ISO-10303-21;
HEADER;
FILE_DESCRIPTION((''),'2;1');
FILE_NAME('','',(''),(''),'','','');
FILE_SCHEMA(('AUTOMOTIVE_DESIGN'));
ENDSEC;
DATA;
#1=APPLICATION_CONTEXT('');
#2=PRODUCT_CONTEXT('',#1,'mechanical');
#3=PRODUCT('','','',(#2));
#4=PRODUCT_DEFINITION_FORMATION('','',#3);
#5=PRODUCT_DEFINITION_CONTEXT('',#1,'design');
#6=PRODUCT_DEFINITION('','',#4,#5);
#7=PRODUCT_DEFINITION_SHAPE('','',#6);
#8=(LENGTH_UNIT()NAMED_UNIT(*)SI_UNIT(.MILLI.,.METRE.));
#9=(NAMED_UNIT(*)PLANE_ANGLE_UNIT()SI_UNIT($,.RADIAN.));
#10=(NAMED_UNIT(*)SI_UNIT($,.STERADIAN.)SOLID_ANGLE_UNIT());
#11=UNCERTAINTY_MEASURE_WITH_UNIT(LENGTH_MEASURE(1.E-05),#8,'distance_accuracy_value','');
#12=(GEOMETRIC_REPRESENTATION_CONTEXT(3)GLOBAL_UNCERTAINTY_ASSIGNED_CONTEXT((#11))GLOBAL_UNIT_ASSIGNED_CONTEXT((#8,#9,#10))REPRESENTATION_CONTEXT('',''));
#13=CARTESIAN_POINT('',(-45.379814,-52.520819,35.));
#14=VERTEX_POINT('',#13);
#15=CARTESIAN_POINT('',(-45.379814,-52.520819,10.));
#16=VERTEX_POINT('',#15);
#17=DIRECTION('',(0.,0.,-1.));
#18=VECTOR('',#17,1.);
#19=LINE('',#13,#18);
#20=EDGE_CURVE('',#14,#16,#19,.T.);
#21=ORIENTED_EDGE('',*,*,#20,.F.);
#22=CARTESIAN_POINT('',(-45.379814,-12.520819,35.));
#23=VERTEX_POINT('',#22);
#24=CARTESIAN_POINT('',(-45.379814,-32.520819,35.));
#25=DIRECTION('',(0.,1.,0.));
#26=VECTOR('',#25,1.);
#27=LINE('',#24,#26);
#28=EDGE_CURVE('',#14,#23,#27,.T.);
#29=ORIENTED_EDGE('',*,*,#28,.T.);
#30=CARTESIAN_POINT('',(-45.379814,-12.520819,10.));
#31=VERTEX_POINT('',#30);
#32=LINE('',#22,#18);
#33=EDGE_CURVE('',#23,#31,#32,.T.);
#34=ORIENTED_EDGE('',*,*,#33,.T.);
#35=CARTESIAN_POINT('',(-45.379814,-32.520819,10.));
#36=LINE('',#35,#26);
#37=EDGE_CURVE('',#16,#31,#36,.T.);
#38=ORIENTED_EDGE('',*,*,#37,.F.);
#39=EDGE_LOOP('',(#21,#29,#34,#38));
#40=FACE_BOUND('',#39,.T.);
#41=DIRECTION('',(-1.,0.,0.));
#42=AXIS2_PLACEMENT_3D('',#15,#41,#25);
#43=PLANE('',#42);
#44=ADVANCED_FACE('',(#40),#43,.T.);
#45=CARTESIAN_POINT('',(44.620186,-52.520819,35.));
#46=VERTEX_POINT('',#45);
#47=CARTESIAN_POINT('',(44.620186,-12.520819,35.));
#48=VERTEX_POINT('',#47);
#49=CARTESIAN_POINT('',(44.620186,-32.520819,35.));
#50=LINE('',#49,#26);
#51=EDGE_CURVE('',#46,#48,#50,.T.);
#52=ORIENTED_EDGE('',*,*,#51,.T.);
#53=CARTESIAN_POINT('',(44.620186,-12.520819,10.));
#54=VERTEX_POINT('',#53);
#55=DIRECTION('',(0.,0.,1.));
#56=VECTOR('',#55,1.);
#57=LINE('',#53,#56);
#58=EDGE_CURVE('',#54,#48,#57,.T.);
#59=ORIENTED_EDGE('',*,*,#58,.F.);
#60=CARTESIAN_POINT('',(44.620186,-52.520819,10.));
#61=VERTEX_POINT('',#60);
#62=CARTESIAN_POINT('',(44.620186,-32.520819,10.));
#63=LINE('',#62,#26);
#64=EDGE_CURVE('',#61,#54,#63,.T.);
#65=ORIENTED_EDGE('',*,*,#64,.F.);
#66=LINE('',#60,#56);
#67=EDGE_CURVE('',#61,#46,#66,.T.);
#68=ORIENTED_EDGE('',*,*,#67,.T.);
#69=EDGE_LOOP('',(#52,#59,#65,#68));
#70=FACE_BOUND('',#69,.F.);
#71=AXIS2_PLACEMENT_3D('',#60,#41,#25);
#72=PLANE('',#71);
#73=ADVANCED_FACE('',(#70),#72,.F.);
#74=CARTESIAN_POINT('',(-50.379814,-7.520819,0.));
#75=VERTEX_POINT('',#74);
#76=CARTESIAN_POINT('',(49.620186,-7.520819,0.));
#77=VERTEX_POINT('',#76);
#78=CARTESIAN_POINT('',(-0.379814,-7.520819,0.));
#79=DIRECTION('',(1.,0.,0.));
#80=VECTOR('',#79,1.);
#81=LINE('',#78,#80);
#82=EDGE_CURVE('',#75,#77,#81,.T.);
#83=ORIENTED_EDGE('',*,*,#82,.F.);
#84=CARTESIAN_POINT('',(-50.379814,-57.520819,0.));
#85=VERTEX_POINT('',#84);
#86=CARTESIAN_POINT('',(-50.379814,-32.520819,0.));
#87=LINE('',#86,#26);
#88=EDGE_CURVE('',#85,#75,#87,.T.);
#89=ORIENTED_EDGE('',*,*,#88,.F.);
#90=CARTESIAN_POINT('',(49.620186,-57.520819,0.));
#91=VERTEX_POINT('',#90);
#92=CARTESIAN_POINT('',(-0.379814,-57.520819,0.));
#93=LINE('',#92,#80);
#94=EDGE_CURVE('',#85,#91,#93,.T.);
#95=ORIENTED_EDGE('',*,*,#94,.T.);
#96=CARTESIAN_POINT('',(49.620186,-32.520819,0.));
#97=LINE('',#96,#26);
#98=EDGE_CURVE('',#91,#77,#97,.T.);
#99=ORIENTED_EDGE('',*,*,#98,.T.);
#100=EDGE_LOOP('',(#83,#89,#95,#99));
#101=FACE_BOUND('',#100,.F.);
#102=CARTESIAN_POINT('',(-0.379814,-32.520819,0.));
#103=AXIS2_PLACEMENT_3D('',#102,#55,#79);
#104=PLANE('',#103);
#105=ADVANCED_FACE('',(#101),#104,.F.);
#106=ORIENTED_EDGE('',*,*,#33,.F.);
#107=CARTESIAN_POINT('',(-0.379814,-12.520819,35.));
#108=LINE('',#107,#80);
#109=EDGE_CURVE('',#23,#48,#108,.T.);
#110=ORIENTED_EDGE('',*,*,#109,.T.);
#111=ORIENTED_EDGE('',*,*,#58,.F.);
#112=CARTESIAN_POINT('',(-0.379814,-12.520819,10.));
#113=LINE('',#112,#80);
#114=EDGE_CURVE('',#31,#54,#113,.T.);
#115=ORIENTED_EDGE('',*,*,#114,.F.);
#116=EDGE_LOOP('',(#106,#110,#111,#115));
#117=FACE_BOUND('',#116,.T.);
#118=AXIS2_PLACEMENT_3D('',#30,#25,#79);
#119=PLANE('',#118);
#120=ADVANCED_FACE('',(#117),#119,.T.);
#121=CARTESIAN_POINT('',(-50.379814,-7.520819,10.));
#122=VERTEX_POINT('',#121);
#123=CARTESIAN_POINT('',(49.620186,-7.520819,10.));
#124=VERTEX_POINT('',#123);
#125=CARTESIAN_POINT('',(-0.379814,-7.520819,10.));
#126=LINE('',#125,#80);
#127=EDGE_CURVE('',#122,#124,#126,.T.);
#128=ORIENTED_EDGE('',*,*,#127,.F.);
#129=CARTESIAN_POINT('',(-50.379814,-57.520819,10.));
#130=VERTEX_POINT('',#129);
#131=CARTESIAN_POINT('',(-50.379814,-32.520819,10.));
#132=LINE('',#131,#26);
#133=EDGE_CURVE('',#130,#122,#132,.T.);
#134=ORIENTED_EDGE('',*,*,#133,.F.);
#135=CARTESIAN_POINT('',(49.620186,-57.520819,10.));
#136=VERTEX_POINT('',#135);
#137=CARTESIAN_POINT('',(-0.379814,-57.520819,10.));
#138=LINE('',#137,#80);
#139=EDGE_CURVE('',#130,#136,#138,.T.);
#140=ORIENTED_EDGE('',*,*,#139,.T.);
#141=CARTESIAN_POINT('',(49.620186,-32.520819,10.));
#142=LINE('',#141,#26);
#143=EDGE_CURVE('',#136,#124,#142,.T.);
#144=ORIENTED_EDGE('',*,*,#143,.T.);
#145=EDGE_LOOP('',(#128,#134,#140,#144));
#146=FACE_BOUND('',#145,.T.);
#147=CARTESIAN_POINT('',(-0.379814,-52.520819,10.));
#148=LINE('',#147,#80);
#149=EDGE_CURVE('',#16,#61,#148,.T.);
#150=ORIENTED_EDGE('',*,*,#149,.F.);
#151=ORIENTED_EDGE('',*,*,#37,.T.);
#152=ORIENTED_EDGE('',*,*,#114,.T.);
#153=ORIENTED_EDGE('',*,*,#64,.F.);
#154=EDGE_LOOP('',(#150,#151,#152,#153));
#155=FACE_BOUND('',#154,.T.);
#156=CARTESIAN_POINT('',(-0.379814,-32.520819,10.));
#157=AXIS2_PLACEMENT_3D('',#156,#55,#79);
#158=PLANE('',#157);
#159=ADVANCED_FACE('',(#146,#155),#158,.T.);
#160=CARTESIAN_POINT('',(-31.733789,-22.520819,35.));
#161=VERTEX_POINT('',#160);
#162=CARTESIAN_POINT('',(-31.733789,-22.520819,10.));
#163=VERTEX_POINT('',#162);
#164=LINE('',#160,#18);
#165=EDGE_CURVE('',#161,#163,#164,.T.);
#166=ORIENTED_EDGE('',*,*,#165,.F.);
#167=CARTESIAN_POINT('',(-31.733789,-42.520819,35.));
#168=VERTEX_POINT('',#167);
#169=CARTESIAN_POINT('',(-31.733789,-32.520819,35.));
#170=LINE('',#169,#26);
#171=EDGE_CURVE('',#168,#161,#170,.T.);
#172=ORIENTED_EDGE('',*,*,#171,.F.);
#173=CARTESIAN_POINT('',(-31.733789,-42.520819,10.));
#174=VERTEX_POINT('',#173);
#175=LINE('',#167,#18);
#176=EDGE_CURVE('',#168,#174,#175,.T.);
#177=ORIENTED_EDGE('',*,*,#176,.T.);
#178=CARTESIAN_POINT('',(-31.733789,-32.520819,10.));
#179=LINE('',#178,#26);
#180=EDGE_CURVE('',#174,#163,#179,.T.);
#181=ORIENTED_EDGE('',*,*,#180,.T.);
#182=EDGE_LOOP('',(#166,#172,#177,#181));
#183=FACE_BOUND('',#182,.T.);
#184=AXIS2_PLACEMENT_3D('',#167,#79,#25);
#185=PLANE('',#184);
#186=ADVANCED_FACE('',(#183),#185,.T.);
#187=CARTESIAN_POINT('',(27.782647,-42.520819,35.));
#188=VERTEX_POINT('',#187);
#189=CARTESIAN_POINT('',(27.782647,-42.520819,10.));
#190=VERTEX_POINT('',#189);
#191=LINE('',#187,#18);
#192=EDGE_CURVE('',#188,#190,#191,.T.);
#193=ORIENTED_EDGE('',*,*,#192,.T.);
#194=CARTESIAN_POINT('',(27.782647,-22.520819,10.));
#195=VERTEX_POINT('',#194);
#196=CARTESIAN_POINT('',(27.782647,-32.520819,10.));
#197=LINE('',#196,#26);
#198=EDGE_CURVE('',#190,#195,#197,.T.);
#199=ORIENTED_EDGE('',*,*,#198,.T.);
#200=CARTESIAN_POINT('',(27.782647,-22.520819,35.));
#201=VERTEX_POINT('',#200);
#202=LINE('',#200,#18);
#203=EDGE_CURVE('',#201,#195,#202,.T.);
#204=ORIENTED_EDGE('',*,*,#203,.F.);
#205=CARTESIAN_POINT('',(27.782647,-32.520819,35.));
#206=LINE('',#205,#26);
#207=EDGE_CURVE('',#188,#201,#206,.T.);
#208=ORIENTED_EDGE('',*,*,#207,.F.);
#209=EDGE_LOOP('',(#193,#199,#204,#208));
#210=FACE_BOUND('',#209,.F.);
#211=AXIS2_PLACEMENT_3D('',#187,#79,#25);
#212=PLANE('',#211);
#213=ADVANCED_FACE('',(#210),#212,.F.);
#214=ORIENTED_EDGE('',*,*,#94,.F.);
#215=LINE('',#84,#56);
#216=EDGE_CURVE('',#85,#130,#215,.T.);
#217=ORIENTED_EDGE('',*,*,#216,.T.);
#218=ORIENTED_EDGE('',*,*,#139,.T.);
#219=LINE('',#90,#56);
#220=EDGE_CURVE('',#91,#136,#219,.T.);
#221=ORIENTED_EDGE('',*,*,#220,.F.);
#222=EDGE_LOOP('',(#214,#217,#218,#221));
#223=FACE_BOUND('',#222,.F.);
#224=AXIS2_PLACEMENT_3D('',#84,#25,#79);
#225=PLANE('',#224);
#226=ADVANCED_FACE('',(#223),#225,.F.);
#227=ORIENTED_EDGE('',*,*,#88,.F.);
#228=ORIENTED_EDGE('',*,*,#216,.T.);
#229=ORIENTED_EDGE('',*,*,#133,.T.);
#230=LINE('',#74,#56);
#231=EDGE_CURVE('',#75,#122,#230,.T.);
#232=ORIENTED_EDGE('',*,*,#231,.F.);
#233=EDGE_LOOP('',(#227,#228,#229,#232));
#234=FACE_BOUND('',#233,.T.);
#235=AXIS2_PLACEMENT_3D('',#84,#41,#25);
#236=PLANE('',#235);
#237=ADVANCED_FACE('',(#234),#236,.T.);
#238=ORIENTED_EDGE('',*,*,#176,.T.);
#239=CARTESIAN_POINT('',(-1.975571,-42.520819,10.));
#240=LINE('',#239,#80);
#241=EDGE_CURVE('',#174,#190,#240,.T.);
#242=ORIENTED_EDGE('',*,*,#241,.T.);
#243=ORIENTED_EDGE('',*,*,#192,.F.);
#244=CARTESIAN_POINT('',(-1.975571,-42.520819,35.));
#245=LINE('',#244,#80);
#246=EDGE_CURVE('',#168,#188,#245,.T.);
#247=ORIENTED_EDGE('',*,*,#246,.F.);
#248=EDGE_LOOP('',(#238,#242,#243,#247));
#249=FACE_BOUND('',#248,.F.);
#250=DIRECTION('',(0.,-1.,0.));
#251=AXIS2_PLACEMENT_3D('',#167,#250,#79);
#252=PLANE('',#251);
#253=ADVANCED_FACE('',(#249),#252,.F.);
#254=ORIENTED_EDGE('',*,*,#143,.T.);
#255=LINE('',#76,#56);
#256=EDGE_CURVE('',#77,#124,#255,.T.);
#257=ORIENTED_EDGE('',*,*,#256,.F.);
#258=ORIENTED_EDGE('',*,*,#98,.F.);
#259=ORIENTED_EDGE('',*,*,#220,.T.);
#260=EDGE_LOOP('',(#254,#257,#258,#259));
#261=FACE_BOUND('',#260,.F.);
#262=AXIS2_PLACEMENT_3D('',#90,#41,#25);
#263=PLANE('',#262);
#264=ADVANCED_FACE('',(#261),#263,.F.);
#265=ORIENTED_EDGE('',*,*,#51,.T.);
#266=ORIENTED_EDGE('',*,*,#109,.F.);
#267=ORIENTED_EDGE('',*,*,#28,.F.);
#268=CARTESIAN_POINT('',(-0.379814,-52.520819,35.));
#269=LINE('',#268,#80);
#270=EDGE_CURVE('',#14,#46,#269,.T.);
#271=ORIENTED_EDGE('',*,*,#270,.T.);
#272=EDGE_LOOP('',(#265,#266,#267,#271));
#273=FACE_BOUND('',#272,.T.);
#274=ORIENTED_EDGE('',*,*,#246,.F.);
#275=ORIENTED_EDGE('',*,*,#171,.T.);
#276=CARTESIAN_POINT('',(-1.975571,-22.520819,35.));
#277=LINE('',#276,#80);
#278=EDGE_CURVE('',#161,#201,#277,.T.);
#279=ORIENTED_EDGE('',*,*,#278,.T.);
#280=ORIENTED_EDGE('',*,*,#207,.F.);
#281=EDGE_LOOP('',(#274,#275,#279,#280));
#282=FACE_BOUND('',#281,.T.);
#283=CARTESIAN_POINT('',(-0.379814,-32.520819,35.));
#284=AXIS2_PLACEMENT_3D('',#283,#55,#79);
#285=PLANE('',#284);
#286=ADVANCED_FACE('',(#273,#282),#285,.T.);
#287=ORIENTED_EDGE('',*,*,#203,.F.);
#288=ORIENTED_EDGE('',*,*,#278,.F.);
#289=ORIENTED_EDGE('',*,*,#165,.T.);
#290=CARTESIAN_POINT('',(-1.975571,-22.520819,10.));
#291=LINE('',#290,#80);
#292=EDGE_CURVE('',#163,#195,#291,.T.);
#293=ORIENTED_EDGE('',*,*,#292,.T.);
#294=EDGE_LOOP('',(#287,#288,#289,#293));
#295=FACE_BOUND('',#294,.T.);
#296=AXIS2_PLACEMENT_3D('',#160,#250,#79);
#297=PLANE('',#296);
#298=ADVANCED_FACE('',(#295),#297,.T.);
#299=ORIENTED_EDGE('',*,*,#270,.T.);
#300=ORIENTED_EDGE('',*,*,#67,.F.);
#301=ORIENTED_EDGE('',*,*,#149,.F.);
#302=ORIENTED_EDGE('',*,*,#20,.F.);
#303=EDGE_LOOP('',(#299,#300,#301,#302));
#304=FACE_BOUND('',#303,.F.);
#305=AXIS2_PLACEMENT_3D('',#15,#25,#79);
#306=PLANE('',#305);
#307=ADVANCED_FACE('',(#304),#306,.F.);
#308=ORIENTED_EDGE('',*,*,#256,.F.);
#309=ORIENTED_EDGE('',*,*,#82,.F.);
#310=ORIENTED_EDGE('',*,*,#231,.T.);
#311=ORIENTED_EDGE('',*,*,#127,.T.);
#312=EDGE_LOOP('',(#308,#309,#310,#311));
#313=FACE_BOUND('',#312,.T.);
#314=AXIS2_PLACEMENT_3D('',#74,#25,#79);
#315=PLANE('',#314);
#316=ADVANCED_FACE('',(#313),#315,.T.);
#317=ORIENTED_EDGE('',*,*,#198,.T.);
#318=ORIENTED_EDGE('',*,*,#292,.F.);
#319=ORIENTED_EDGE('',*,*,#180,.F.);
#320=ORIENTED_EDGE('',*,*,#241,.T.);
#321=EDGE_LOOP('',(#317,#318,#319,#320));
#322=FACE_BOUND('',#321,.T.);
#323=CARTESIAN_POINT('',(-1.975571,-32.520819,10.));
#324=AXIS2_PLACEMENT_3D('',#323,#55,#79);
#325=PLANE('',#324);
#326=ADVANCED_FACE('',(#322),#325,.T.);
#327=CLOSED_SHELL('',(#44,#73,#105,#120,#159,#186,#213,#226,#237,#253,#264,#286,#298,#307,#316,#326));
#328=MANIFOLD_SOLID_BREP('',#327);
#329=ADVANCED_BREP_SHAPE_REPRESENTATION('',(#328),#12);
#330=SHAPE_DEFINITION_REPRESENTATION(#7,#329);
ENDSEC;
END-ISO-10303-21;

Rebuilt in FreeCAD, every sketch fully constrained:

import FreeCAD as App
import Part
import Sketcher


def add_polygon(sketch, points):
    """Adds a closed chain of lines whose ends are joined by coincident constraints."""
    first, n = sketch.GeometryCount, len(points)
    for a, b in zip(points, points[1:] + points[:1]):
        sketch.addGeometry(Part.LineSegment(App.Vector(*a, 0), App.Vector(*b, 0)), False)
    for i in range(n):
        sketch.addConstraint(Sketcher.Constraint("Coincident", first + i, 2, first + (i + 1) % n, 1))

doc = App.newDocument("Part")
params = doc.addObject("Spreadsheet::Sheet", "Params")
for row, (alias, value) in enumerate([
    ("sketch1_width", "100 mm"),
    ("sketch1_height", "50 mm"),
    ("pad1_length", "10 mm"),
    ("sketch2_width", "90 mm"),
    ("sketch2_height", "40 mm"),
    ("pad2_length", "5 mm"),
    ("sketch3_width", "90 mm"),
    ("sketch3_height", "40 mm"),
    ("pad3_length", "25 mm"),
    ("sketch4_height", "20 mm"),
    ("pocket1_length", "25 mm"),
], start=1):
    params.set(f"A{row}", alias)
    params.set(f"B{row}", "=" + value)
    params.setAlias(f"B{row}", alias)

body = doc.addObject("PartDesign::Body", "Body")

# Sketch on XY plane
sketch1 = body.newObject("Sketcher::SketchObject", "Sketch")
sketch1.AttachmentSupport = (doc.getObject("XY_Plane"), [""])
sketch1.MapMode = "FlatFace"
add_polygon(sketch1, [(-50, -8), (-50, -58), (50, -58), (50, -8)])  # lines 0-3
sketch1.addConstraint([
    Sketcher.Constraint("Vertical", 0),
    Sketcher.Constraint("Horizontal", 1),
    Sketcher.Constraint("Vertical", 2),
    Sketcher.Constraint("Horizontal", 3),
    Sketcher.Constraint("DistanceX", 1, 1, 1, 2, 100.0),
    Sketcher.Constraint("DistanceY", 0, 2, 0, 1, 50.0),
    Sketcher.Constraint("DistanceY", 0, 2, -1, 1, 57.520819),
    Sketcher.Constraint("DistanceX", 0, 2, -1, 1, 50.379814),
])
sketch1.setExpression("Constraints[8]", "Params.sketch1_width")
sketch1.setExpression("Constraints[9]", "Params.sketch1_height")
pad1 = body.newObject("PartDesign::Pad", "Pad")
pad1.Profile = sketch1
pad1.setExpression("Length", "Params.pad1_length")

# Sketch on XY plane
sketch2 = body.newObject("Sketcher::SketchObject", "Sketch001")
sketch2.AttachmentSupport = (doc.getObject("XY_Plane"), [""])
sketch2.MapMode = "FlatFace"
sketch2.AttachmentOffset = App.Placement(App.Vector(0, 0, 10), App.Rotation())
add_polygon(sketch2, [(-45, -13), (-45, -53), (45, -53), (45, -13)])  # lines 0-3
sketch2.addConstraint([
    Sketcher.Constraint("Vertical", 0),
    Sketcher.Constraint("Horizontal", 1),
    Sketcher.Constraint("Vertical", 2),
    Sketcher.Constraint("Horizontal", 3),
    Sketcher.Constraint("DistanceX", 1, 1, 1, 2, 90.0),
    Sketcher.Constraint("DistanceY", 0, 2, 0, 1, 40.0),
    Sketcher.Constraint("DistanceY", 0, 2, -1, 1, 52.520819),
    Sketcher.Constraint("DistanceX", 0, 2, -1, 1, 45.379814),
])
sketch2.setExpression("Constraints[8]", "Params.sketch2_width")
sketch2.setExpression("Constraints[9]", "Params.sketch2_height")
pad2 = body.newObject("PartDesign::Pad", "Pad001")
pad2.Profile = sketch2
pad2.setExpression("Length", "Params.pad2_length")

# Sketch on XY plane
sketch3 = body.newObject("Sketcher::SketchObject", "Sketch002")
sketch3.AttachmentSupport = (doc.getObject("XY_Plane"), [""])
sketch3.MapMode = "FlatFace"
sketch3.AttachmentOffset = App.Placement(App.Vector(0, 0, 10), App.Rotation())
add_polygon(sketch3, [(-45, -13), (-45, -53), (45, -53), (45, -13)])  # lines 0-3
sketch3.addConstraint([
    Sketcher.Constraint("Vertical", 0),
    Sketcher.Constraint("Horizontal", 1),
    Sketcher.Constraint("Vertical", 2),
    Sketcher.Constraint("Horizontal", 3),
    Sketcher.Constraint("DistanceX", 1, 1, 1, 2, 90.0),
    Sketcher.Constraint("DistanceY", 0, 2, 0, 1, 40.0),
    Sketcher.Constraint("DistanceY", 0, 2, -1, 1, 52.520819),
    Sketcher.Constraint("DistanceX", 0, 2, -1, 1, 45.379814),
])
sketch3.setExpression("Constraints[8]", "Params.sketch3_width")
sketch3.setExpression("Constraints[9]", "Params.sketch3_height")
pad3 = body.newObject("PartDesign::Pad", "Pad002")
pad3.Profile = sketch3
pad3.setExpression("Length", "Params.pad3_length")

# Sketch on XY plane
sketch4 = body.newObject("Sketcher::SketchObject", "Sketch003")
sketch4.AttachmentSupport = (doc.getObject("XY_Plane"), [""])
sketch4.MapMode = "FlatFace"
sketch4.AttachmentOffset = App.Placement(App.Vector(0, 0, 35), App.Rotation())
add_polygon(sketch4, [(-32, -23), (-32, -43), (28, -43), (28, -23)])  # lines 0-3
sketch4.addConstraint([
    Sketcher.Constraint("Vertical", 0),
    Sketcher.Constraint("Horizontal", 1),
    Sketcher.Constraint("Vertical", 2),
    Sketcher.Constraint("Horizontal", 3),
    Sketcher.Constraint("DistanceY", 0, 2, 0, 1, 20.0),
    Sketcher.Constraint("DistanceX", 1, 1, 1, 2, 59.516436),
    Sketcher.Constraint("DistanceX", 0, 2, -1, 1, 31.733789),
    Sketcher.Constraint("DistanceY", 0, 2, -1, 1, 42.520819),
])
sketch4.setExpression("Constraints[8]", "Params.sketch4_height")
pocket1 = body.newObject("PartDesign::Pocket", "Pocket")
pocket1.Profile = sketch4
pocket1.setExpression("Length", "Params.pocket1_length")

doc.recompute()
